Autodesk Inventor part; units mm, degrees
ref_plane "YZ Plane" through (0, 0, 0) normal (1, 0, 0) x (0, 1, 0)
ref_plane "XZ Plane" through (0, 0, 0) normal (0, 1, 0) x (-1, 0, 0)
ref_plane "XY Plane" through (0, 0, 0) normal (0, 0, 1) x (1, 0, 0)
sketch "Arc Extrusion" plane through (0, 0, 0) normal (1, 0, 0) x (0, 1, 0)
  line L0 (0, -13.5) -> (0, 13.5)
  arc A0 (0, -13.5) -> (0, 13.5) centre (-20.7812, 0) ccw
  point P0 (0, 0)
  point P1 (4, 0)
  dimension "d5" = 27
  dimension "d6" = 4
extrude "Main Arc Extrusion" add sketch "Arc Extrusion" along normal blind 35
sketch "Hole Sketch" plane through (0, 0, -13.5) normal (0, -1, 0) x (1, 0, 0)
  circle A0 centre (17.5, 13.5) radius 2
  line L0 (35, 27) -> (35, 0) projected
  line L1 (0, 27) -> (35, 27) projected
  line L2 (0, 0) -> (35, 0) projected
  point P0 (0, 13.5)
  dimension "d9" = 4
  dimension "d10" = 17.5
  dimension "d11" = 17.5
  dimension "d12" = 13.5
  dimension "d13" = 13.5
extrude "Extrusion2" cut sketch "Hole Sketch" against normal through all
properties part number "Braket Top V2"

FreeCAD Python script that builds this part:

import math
import FreeCAD as App
import Part
import Sketcher
from FreeCAD import Vector

doc = App.newDocument("Part")
body = doc.addObject("PartDesign::Body", "Body")

# Sketch on YZ plane
sketch1 = doc.addObject("Sketcher::SketchObject", "Sketch")
body.addObject(sketch1)
sketch1.AttachmentSupport = (doc.YZ_Plane, [""])
sketch1.MapMode = "FlatFace"
sketch1.addGeometry(Part.LineSegment(Vector(0, 14, 0), Vector(0, -14, 0)), False)
sketch1.addGeometry(Part.ArcOfCircle(Part.Circle(Vector(-21, 0, 0), Vector(0, 0, 1), 25), math.radians(-33), math.radians(33)), False)
sketch1.addConstraint(Sketcher.Constraint("Coincident", 0, 1, 1, 2))
sketch1.addConstraint(Sketcher.Constraint("Coincident", 1, 1, 0, 2))
sketch1.addConstraint(Sketcher.Constraint("Vertical", 0))
sketch1.addConstraint(Sketcher.Constraint("Symmetric", 0, 1, 1, 1, -1, 1))
sketch1.addConstraint(Sketcher.Constraint("DistanceY", 0, 2, 0, 1, 27.0))
sketch1.addConstraint(Sketcher.Constraint("Radius", 1, 24.7812))
pad1 = doc.addObject("PartDesign::Pad", "Pad")
body.addObject(pad1)
pad1.Profile = sketch1
pad1.Length = 35

# Sketch on XZ plane
sketch2 = doc.addObject("Sketcher::SketchObject", "Sketch001")
body.addObject(sketch2)
sketch2.AttachmentSupport = (doc.XZ_Plane, [""])
sketch2.MapMode = "FlatFace"
sketch2.addGeometry(Part.Circle(Vector(17.5, 0, 0), Vector(0, 0, 1), 2), False)
sketch2.addConstraint(Sketcher.Constraint("PointOnObject", 0, 3, -1))
sketch2.addConstraint(Sketcher.Constraint("Diameter", 0, 4.0))
sketch2.addConstraint(Sketcher.Constraint("DistanceX", -1, 1, 0, 3, 17.5))
pocket1 = doc.addObject("PartDesign::Pocket", "Pocket")
body.addObject(pocket1)
pocket1.Profile = sketch2
pocket1.Type = "ThroughAll"

doc.recompute()
